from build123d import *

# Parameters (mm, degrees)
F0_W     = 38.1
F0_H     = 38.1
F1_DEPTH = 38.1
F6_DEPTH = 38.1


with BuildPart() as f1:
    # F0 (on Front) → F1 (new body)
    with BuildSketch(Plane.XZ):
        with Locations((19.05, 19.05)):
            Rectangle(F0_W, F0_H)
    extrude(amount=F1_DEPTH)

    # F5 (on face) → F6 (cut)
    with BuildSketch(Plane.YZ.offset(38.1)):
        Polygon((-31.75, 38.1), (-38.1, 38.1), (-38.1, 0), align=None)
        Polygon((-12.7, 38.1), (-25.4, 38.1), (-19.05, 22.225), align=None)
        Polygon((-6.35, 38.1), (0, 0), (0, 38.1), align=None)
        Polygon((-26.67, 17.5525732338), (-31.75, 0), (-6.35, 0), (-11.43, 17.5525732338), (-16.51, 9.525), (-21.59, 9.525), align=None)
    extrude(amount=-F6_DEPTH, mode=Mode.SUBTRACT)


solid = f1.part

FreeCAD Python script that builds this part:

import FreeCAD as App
import Part
import Sketcher
from FreeCAD import Vector
Q = App.Units.Quantity

doc = App.newDocument("Part")
params = doc.addObject("Spreadsheet::Sheet", "Params")
for row, (alias, value) in enumerate([
    ("sketch1_width", "1.5 in"),
    ("pad1_length", "1.5 in"),
    ("sketch2_width", "1 in"),
    ("sketch2_width2", "0.5 in"),
    ("sketch2_width3", "0.2 in"),
    ("sketch2_height", "1.5 in"),
    ("pocket1_length", "1.5 in"),
], start=1):
    params.set(f"A{row}", alias)
    params.set(f"B{row}", "=" + value)
    params.setAlias(f"B{row}", alias)

body = doc.addObject("PartDesign::Body", "Body")

# Sketch on XZ plane
sketch1 = body.newObject("Sketcher::SketchObject", "Sketch")
sketch1.AttachmentSupport = (doc.getObject("XZ_Plane"), [""])
sketch1.MapMode = "FlatFace"
sketch1.addGeometry(Part.LineSegment(Vector(0, 38, 0), Vector(0, 0, 0)), False)
sketch1.addGeometry(Part.LineSegment(Vector(0, 0, 0), Vector(38, 0, 0)), False)
sketch1.addGeometry(Part.LineSegment(Vector(38, 0, 0), Vector(38, 38, 0)), False)
sketch1.addGeometry(Part.LineSegment(Vector(38, 38, 0), Vector(0, 38, 0)), False)
sketch1.addConstraint(Sketcher.Constraint("Coincident", 0, 2, 1, 1))
sketch1.addConstraint(Sketcher.Constraint("Coincident", 1, 2, 2, 1))
sketch1.addConstraint(Sketcher.Constraint("Coincident", 2, 2, 3, 1))
sketch1.addConstraint(Sketcher.Constraint("Coincident", 3, 2, 0, 1))
sketch1.addConstraint(Sketcher.Constraint("Vertical", 0))
sketch1.addConstraint(Sketcher.Constraint("Horizontal", 1))
sketch1.addConstraint(Sketcher.Constraint("Vertical", 2))
sketch1.addConstraint(Sketcher.Constraint("Horizontal", 3))
sketch1.addConstraint(Sketcher.Constraint("Coincident", 0, 2, -1, 1))
sketch1.addConstraint(Sketcher.Constraint("Equal", 3, 0))
sketch1.addConstraint(Sketcher.Constraint("DistanceX", 1, 1, 1, 2, Q("1.5 in")))
sketch1.setExpression("Constraints[10]", "Params.sketch1_width")
pad1 = body.newObject("PartDesign::Pad", "Pad")
pad1.Profile = sketch1
pad1.setExpression("Length", "Params.pad1_length")

# Sketch on YZ plane
sketch2 = body.newObject("Sketcher::SketchObject", "Sketch001")
sketch2.AttachmentSupport = (doc.getObject("YZ_Plane"), [""])
sketch2.MapMode = "FlatFace"
sketch2.AttachmentOffset = App.Placement(Vector(0, 0, 1.5 * 25.4), App.Rotation())
sketch2.addGeometry(Part.LineSegment(Vector(-32, 38, 0), Vector(-38, 38, 0)), False)
sketch2.addGeometry(Part.LineSegment(Vector(-38, 38, 0), Vector(-38, 0, 0)), False)
sketch2.addGeometry(Part.LineSegment(Vector(-38, 0, 0), Vector(-32, 38, 0)), False)
sketch2.addGeometry(Part.LineSegment(Vector(-13, 38, 0), Vector(-25, 38, 0)), False)
sketch2.addGeometry(Part.LineSegment(Vector(-25, 38, 0), Vector(-19, 22, 0)), False)
sketch2.addGeometry(Part.LineSegment(Vector(-19, 22, 0), Vector(-13, 38, 0)), False)
sketch2.addGeometry(Part.LineSegment(Vector(-6, 38, 0), Vector(0, 0, 0)), False)
sketch2.addGeometry(Part.LineSegment(Vector(0, 0, 0), Vector(0, 38, 0)), False)
sketch2.addGeometry(Part.LineSegment(Vector(0, 38, 0), Vector(-6, 38, 0)), False)
sketch2.addGeometry(Part.LineSegment(Vector(-27, 18, 0), Vector(-32, 0, 0)), False)
sketch2.addGeometry(Part.LineSegment(Vector(-32, 0, 0), Vector(-6, 0, 0)), False)
sketch2.addGeometry(Part.LineSegment(Vector(-6, 0, 0), Vector(-11, 18, 0)), False)
sketch2.addGeometry(Part.LineSegment(Vector(-11, 18, 0), Vector(-17, 10, 0)), False)
sketch2.addGeometry(Part.LineSegment(Vector(-17, 10, 0), Vector(-22, 10, 0)), False)
sketch2.addGeometry(Part.LineSegment(Vector(-22, 10, 0), Vector(-27, 18, 0)), False)
sketch2.addConstraint(Sketcher.Constraint("Coincident", 0, 2, 1, 1))
sketch2.addConstraint(Sketcher.Constraint("Coincident", 1, 2, 2, 1))
sketch2.addConstraint(Sketcher.Constraint("Coincident", 2, 2, 0, 1))
sketch2.addConstraint(Sketcher.Constraint("Coincident", 3, 2, 4, 1))
sketch2.addConstraint(Sketcher.Constraint("Coincident", 4, 2, 5, 1))
sketch2.addConstraint(Sketcher.Constraint("Coincident", 5, 2, 3, 1))
sketch2.addConstraint(Sketcher.Constraint("Coincident", 6, 2, 7, 1))
sketch2.addConstraint(Sketcher.Constraint("Coincident", 7, 2, 8, 1))
sketch2.addConstraint(Sketcher.Constraint("Coincident", 8, 2, 6, 1))
sketch2.addConstraint(Sketcher.Constraint("Coincident", 9, 2, 10, 1))
sketch2.addConstraint(Sketcher.Constraint("Coincident", 10, 2, 11, 1))
sketch2.addConstraint(Sketcher.Constraint("Coincident", 11, 2, 12, 1))
sketch2.addConstraint(Sketcher.Constraint("Coincident", 12, 2, 13, 1))
sketch2.addConstraint(Sketcher.Constraint("Coincident", 13, 2, 14, 1))
sketch2.addConstraint(Sketcher.Constraint("Coincident", 14, 2, 9, 1))
sketch2.addConstraint(Sketcher.Constraint("Horizontal", 0))
sketch2.addConstraint(Sketcher.Constraint("Vertical", 1))
sketch2.addConstraint(Sketcher.Constraint("Horizontal", 3))
sketch2.addConstraint(Sketcher.Constraint("Vertical", 7))
sketch2.addConstraint(Sketcher.Constraint("Horizontal", 8))
sketch2.addConstraint(Sketcher.Constraint("Horizontal", 10))
sketch2.addConstraint(Sketcher.Constraint("Horizontal", 13))
sketch2.addConstraint(Sketcher.Constraint("Coincident", 6, 2, -1, 1))
sketch2.addConstraint(Sketcher.Constraint("PointOnObject", 1, 2, -1))
sketch2.addConstraint(Sketcher.Constraint("PointOnObject", 9, 2, -1))
sketch2.addConstraint(Sketcher.Constraint("Horizontal", 2, 2, 3, 2))
sketch2.addConstraint(Sketcher.Constraint("Horizontal", 5, 2, 7, 2))
sketch2.addConstraint(Sketcher.Constraint("Horizontal", 11, 2, 14, 2))
sketch2.addConstraint(Sketcher.Constraint("Vertical", 2, 2, 9, 2))
sketch2.addConstraint(Sketcher.Constraint("Vertical", 8, 2, 10, 2))
sketch2.addConstraint(Sketcher.Constraint("Equal", 0, 8))
sketch2.addConstraint(Sketcher.Constraint("Equal", 4, 5))
sketch2.addConstraint(Sketcher.Constraint("Equal", 9, 11))
sketch2.addConstraint(Sketcher.Constraint("Equal", 12, 14))
sketch2.addConstraint(Sketcher.Constraint("DistanceX", 10, 1, 10, 2, Q("1 in")))
sketch2.addConstraint(Sketcher.Constraint("DistanceX", 3, 2, 3, 1, Q("0.5 in")))
sketch2.addConstraint(Sketcher.Constraint("DistanceX", 13, 2, 13, 1, Q("0.2 in")))
sketch2.addConstraint(Sketcher.Constraint("DistanceY", 1, 2, 1, 1, Q("1.5 in")))
sketch2.addConstraint(Sketcher.Constraint("DistanceX", 3, 2, -1, 1, Q("1 in")))
sketch2.addConstraint(Sketcher.Constraint("DistanceX", 0, 2, 5, 2, Q("1 in")))
sketch2.addConstraint(Sketcher.Constraint("DistanceX", 4, 2, 11, 2, Q("0.3 in")))
sketch2.addConstraint(Sketcher.Constraint("DistanceY", 12, 2, 4, 2, Q("0.5 in")))
sketch2.addConstraint(Sketcher.Constraint("DistanceY", -1, 1, 4, 2, Q("0.875 in")))
sketch2.addConstraint(Sketcher.Constraint("Distance", 9, 18.27291))
sketch2.setExpression("Constraints[34]", "Params.sketch2_width")
sketch2.setExpression("Constraints[35]", "Params.sketch2_width2")
sketch2.setExpression("Constraints[36]", "Params.sketch2_width3")
sketch2.setExpression("Constraints[37]", "Params.sketch2_height")
pocket1 = body.newObject("PartDesign::Pocket", "Pocket")
pocket1.Profile = sketch2
pocket1.setExpression("Length", "Params.pocket1_length")

doc.recompute()
